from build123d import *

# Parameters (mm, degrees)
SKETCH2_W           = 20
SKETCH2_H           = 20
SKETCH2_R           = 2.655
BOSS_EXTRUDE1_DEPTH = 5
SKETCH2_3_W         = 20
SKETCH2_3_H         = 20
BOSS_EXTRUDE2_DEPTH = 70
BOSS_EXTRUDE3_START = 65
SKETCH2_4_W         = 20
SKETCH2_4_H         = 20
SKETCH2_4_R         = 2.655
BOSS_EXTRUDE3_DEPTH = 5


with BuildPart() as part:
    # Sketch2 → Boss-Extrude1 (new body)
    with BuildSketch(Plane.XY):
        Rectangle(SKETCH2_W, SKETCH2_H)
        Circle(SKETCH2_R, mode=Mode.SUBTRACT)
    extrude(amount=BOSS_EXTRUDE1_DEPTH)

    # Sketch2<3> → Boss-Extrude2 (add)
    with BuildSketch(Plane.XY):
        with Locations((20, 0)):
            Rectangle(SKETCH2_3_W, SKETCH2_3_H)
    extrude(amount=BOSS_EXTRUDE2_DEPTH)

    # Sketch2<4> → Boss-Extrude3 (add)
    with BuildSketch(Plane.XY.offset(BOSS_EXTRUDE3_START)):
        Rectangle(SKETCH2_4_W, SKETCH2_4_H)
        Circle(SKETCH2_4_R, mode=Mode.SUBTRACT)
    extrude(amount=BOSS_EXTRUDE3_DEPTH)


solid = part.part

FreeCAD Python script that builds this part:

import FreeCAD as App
import Part
import Sketcher
from FreeCAD import Vector

doc = App.newDocument("Part")
body = doc.addObject("PartDesign::Body", "Body")

# Sketch on XY plane
sketch1 = body.newObject("Sketcher::SketchObject", "Sketch")
sketch1.AttachmentSupport = (doc.getObject("XY_Plane"), [""])
sketch1.MapMode = "FlatFace"
sketch1.addGeometry(Part.LineSegment(Vector(-10, 10, 0), Vector(-10, -10, 0)), False)
sketch1.addGeometry(Part.LineSegment(Vector(-10, -10, 0), Vector(10, -10, 0)), False)
sketch1.addGeometry(Part.LineSegment(Vector(10, -10, 0), Vector(10, 10, 0)), False)
sketch1.addGeometry(Part.LineSegment(Vector(10, 10, 0), Vector(-10, 10, 0)), False)
sketch1.addGeometry(Part.Circle(Vector(0, 0, 0), Vector(0, 0, 1), 2.7), False)
sketch1.addConstraint(Sketcher.Constraint("Coincident", 0, 2, 1, 1))
sketch1.addConstraint(Sketcher.Constraint("Coincident", 1, 2, 2, 1))
sketch1.addConstraint(Sketcher.Constraint("Coincident", 2, 2, 3, 1))
sketch1.addConstraint(Sketcher.Constraint("Coincident", 3, 2, 0, 1))
sketch1.addConstraint(Sketcher.Constraint("Vertical", 0))
sketch1.addConstraint(Sketcher.Constraint("Horizontal", 1))
sketch1.addConstraint(Sketcher.Constraint("Vertical", 2))
sketch1.addConstraint(Sketcher.Constraint("Horizontal", 3))
sketch1.addConstraint(Sketcher.Constraint("Coincident", 4, 3, -1, 1))
sketch1.addConstraint(Sketcher.Constraint("Symmetric", 0, 2, 2, 2, -1, 1))
sketch1.addConstraint(Sketcher.Constraint("Equal", 3, 0))
sketch1.addConstraint(Sketcher.Constraint("Diameter", 4, 5.31))
sketch1.addConstraint(Sketcher.Constraint("DistanceX", 1, 1, 1, 2, 20.0))
pad1 = body.newObject("PartDesign::Pad", "Pad")
pad1.Profile = sketch1
pad1.Length = 5

# Sketch on XY plane
sketch2 = body.newObject("Sketcher::SketchObject", "Sketch001")
sketch2.AttachmentSupport = (doc.getObject("XY_Plane"), [""])
sketch2.MapMode = "FlatFace"
sketch2.addGeometry(Part.LineSegment(Vector(10, 10, 0), Vector(10, -10, 0)), False)
sketch2.addGeometry(Part.LineSegment(Vector(10, -10, 0), Vector(30, -10, 0)), False)
sketch2.addGeometry(Part.LineSegment(Vector(30, -10, 0), Vector(30, 10, 0)), False)
sketch2.addGeometry(Part.LineSegment(Vector(30, 10, 0), Vector(10, 10, 0)), False)
sketch2.addConstraint(Sketcher.Constraint("Coincident", 0, 2, 1, 1))
sketch2.addConstraint(Sketcher.Constraint("Coincident", 1, 2, 2, 1))
sketch2.addConstraint(Sketcher.Constraint("Coincident", 2, 2, 3, 1))
sketch2.addConstraint(Sketcher.Constraint("Coincident", 3, 2, 0, 1))
sketch2.addConstraint(Sketcher.Constraint("Vertical", 0))
sketch2.addConstraint(Sketcher.Constraint("Horizontal", 1))
sketch2.addConstraint(Sketcher.Constraint("Vertical", 2))
sketch2.addConstraint(Sketcher.Constraint("Horizontal", 3))
sketch2.addConstraint(Sketcher.Constraint("Equal", 3, 0))
sketch2.addConstraint(Sketcher.Constraint("DistanceX", 1, 1, 1, 2, 20.0))
sketch2.addConstraint(Sketcher.Constraint("DistanceX", -1, 1, 0, 2, 10.0))
sketch2.addConstraint(Sketcher.Constraint("DistanceY", 0, 2, -1, 1, 10.0))
pad2 = body.newObject("PartDesign::Pad", "Pad001")
pad2.Profile = sketch2
pad2.Length = 70

# Sketch on XY plane
sketch3 = body.newObject("Sketcher::SketchObject", "Sketch002")
sketch3.AttachmentSupport = (doc.getObject("XY_Plane"), [""])
sketch3.MapMode = "FlatFace"
sketch3.AttachmentOffset = App.Placement(Vector(0, 0, 65), App.Rotation())
sketch3.addGeometry(Part.LineSegment(Vector(-10, 10, 0), Vector(-10, -10, 0)), False)
sketch3.addGeometry(Part.LineSegment(Vector(-10, -10, 0), Vector(10, -10, 0)), False)
sketch3.addGeometry(Part.LineSegment(Vector(10, -10, 0), Vector(10, 10, 0)), False)
sketch3.addGeometry(Part.LineSegment(Vector(10, 10, 0), Vector(-10, 10, 0)), False)
sketch3.addGeometry(Part.Circle(Vector(0, 0, 0), Vector(0, 0, 1), 2.7), False)
sketch3.addConstraint(Sketcher.Constraint("Coincident", 0, 2, 1, 1))
sketch3.addConstraint(Sketcher.Constraint("Coincident", 1, 2, 2, 1))
sketch3.addConstraint(Sketcher.Constraint("Coincident", 2, 2, 3, 1))
sketch3.addConstraint(Sketcher.Constraint("Coincident", 3, 2, 0, 1))
sketch3.addConstraint(Sketcher.Constraint("Vertical", 0))
sketch3.addConstraint(Sketcher.Constraint("Horizontal", 1))
sketch3.addConstraint(Sketcher.Constraint("Vertical", 2))
sketch3.addConstraint(Sketcher.Constraint("Horizontal", 3))
sketch3.addConstraint(Sketcher.Constraint("Coincident", 4, 3, -1, 1))
sketch3.addConstraint(Sketcher.Constraint("Symmetric", 0, 2, 2, 2, -1, 1))
sketch3.addConstraint(Sketcher.Constraint("Equal", 3, 0))
sketch3.addConstraint(Sketcher.Constraint("Diameter", 4, 5.31))
sketch3.addConstraint(Sketcher.Constraint("DistanceX", 1, 1, 1, 2, 20.0))
pad3 = body.newObject("PartDesign::Pad", "Pad002")
pad3.Profile = sketch3
pad3.Length = 5

doc.recompute()
